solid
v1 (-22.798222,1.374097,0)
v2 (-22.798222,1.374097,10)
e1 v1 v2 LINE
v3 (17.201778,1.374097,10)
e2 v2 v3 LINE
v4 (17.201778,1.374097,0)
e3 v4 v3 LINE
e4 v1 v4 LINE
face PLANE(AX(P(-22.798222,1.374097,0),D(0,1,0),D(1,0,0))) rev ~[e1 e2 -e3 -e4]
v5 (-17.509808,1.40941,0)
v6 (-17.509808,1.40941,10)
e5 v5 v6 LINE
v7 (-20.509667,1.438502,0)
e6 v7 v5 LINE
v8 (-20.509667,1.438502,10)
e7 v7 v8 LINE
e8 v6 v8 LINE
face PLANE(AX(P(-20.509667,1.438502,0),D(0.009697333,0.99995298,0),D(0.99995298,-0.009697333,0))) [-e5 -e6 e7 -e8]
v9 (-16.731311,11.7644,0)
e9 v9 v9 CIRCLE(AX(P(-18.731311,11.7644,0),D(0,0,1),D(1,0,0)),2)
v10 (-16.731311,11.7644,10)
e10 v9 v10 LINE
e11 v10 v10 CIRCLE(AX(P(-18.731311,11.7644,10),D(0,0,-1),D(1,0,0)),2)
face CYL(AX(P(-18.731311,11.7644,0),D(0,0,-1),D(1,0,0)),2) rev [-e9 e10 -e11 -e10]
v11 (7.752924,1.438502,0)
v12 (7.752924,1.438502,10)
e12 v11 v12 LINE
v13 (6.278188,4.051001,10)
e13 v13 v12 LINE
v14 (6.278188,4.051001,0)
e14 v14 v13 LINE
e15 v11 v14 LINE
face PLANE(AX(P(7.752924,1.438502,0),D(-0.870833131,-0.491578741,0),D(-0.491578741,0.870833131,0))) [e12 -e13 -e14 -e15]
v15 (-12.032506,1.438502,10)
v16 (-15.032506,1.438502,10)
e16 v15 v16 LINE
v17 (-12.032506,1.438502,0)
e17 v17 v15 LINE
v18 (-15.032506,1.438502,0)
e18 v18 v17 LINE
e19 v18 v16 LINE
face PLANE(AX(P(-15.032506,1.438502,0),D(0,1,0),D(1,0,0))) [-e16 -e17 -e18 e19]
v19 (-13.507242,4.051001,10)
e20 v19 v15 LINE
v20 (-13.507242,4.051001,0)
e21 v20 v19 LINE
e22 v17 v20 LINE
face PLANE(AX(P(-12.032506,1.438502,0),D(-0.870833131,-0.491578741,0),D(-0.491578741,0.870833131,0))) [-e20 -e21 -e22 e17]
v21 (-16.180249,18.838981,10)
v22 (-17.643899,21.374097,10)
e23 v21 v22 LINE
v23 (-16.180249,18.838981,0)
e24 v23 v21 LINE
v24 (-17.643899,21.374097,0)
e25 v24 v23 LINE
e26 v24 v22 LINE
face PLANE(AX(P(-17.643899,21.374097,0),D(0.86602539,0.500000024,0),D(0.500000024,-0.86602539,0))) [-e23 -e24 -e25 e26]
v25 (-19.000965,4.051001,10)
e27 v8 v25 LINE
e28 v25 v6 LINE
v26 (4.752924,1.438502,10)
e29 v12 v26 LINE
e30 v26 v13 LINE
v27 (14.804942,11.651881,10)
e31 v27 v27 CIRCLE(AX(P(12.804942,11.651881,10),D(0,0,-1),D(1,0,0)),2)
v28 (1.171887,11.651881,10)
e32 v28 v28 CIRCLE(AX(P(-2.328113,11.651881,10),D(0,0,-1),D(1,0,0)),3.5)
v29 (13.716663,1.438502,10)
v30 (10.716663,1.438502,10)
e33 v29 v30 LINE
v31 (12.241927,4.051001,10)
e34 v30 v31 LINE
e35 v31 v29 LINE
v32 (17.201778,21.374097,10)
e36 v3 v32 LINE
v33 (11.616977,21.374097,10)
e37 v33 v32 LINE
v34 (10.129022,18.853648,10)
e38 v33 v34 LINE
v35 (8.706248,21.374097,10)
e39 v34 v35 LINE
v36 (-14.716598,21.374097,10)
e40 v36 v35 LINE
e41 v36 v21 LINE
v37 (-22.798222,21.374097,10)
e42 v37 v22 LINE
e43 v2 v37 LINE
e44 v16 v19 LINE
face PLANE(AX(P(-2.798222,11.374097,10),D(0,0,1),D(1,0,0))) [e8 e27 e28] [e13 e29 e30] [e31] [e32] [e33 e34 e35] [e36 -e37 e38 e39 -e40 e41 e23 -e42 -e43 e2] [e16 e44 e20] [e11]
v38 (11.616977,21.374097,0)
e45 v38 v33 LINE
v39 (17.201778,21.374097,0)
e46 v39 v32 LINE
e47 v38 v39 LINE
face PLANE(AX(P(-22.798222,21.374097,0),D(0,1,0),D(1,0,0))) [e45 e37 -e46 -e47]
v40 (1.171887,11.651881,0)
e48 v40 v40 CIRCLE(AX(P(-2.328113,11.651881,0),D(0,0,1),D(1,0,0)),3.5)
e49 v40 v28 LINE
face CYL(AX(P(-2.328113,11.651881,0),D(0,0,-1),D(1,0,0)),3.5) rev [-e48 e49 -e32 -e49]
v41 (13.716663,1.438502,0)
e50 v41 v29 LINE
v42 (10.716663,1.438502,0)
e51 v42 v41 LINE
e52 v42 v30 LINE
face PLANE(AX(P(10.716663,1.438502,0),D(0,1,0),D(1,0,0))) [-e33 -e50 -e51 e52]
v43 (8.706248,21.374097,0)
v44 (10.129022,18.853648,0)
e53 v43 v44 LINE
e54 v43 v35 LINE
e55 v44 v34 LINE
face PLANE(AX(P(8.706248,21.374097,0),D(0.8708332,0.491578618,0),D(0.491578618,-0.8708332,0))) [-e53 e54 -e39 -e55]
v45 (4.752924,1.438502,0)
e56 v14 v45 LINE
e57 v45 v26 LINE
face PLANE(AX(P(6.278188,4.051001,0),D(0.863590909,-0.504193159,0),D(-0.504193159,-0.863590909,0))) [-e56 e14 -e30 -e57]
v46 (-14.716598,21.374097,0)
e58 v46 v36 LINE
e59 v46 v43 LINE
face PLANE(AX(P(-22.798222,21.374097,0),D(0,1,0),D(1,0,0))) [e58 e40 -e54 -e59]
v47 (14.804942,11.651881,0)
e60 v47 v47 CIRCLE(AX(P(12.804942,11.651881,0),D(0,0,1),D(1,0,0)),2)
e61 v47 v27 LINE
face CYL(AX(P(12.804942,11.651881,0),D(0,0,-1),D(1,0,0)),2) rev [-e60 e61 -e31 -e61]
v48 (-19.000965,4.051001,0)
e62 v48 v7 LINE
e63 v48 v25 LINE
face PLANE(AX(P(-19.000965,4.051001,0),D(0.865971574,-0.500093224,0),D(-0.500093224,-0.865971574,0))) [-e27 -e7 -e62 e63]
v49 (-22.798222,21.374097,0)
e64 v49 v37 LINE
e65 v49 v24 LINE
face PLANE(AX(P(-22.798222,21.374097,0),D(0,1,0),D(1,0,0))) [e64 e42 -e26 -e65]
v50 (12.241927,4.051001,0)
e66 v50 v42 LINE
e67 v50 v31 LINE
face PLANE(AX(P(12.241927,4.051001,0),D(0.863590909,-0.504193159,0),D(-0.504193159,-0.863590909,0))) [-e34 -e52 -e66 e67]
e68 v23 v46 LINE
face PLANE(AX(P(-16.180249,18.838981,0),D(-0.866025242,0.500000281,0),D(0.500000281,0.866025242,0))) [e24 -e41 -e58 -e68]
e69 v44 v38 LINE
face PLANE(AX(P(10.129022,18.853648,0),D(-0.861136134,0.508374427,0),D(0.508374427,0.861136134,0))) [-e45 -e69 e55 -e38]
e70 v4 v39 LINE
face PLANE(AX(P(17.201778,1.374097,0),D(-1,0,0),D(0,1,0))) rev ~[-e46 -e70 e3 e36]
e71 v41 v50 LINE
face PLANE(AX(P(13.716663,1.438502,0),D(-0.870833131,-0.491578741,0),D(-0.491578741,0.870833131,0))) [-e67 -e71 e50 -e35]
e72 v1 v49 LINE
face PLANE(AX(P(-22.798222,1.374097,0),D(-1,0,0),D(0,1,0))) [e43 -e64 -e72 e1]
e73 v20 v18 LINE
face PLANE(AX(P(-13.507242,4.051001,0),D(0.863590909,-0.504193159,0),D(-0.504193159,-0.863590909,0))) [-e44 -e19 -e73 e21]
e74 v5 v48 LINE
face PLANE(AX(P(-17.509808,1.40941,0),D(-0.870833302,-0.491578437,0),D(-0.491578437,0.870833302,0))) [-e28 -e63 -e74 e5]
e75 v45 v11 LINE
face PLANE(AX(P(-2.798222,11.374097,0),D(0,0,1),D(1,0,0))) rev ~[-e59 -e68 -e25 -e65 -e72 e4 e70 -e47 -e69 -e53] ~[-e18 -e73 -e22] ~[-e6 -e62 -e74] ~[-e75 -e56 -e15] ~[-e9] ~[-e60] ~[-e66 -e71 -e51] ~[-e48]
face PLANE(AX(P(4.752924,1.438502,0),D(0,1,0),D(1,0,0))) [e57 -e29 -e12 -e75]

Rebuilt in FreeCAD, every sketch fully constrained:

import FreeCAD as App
import Part
import Sketcher
Q = App.Units.Quantity

doc = App.newDocument("Part")
body = doc.addObject("PartDesign::Body", "Body")

# Sketch on XY plane
sketch1 = body.newObject("Sketcher::SketchObject", "Sketch")
sketch1.AttachmentSupport = (doc.getObject("XY_Plane"), [""])
sketch1.MapMode = "FlatFace"
sketch1.addGeometry(Part.LineSegment(App.Vector(-23, 21, 0), App.Vector(-23, 1, 0)), False)
sketch1.addGeometry(Part.LineSegment(App.Vector(-23, 1, 0), App.Vector(17, 1, 0)), False)
sketch1.addGeometry(Part.LineSegment(App.Vector(17, 1, 0), App.Vector(17, 21, 0)), False)
sketch1.addGeometry(Part.LineSegment(App.Vector(17, 21, 0), App.Vector(-23, 21, 0)), False)
sketch1.addConstraint(Sketcher.Constraint("Coincident", 0, 2, 1, 1))
sketch1.addConstraint(Sketcher.Constraint("Coincident", 1, 2, 2, 1))
sketch1.addConstraint(Sketcher.Constraint("Coincident", 2, 2, 3, 1))
sketch1.addConstraint(Sketcher.Constraint("Coincident", 3, 2, 0, 1))
sketch1.addConstraint(Sketcher.Constraint("Vertical", 0))
sketch1.addConstraint(Sketcher.Constraint("Horizontal", 1))
sketch1.addConstraint(Sketcher.Constraint("Vertical", 2))
sketch1.addConstraint(Sketcher.Constraint("Horizontal", 3))
sketch1.addConstraint(Sketcher.Constraint("DistanceX", 1, 1, 1, 2, 40.0))
sketch1.addConstraint(Sketcher.Constraint("DistanceY", 0, 2, 0, 1, 20.0))
sketch1.addConstraint(Sketcher.Constraint("DistanceX", 0, 2, -1, 1, 22.798222))
sketch1.addConstraint(Sketcher.Constraint("DistanceY", -1, 1, 0, 2, 1.374097))
pad1 = body.newObject("PartDesign::Pad", "Pad")
pad1.Profile = sketch1
pad1.Length = 10

# Sketch on XY plane
sketch2 = body.newObject("Sketcher::SketchObject", "Sketch001")
sketch2.AttachmentSupport = (doc.getObject("XY_Plane"), [""])
sketch2.MapMode = "FlatFace"
sketch2.addGeometry(Part.LineSegment(App.Vector(-19, 4.1, 0), App.Vector(-20.5, 1.4, 0)), False)
sketch2.addGeometry(Part.LineSegment(App.Vector(-20.5, 1.4, 0), App.Vector(-17.5, 1.4, 0)), False)
sketch2.addGeometry(Part.LineSegment(App.Vector(-17.5, 1.4, 0), App.Vector(-19, 4.1, 0)), False)
sketch2.addGeometry(Part.LineSegment(App.Vector(-13.5, 4.1, 0), App.Vector(-15, 1.4, 0)), False)
sketch2.addGeometry(Part.LineSegment(App.Vector(-15, 1.4, 0), App.Vector(-12, 1.4, 0)), False)
sketch2.addGeometry(Part.LineSegment(App.Vector(-12, 1.4, 0), App.Vector(-13.5, 4.1, 0)), False)
sketch2.addGeometry(Part.LineSegment(App.Vector(6.3, 4.1, 0), App.Vector(4.8, 1.4, 0)), False)
sketch2.addGeometry(Part.LineSegment(App.Vector(4.8, 1.4, 0), App.Vector(7.8, 1.4, 0)), False)
sketch2.addGeometry(Part.LineSegment(App.Vector(7.8, 1.4, 0), App.Vector(6.3, 4.1, 0)), False)
sketch2.addGeometry(Part.LineSegment(App.Vector(12.2, 4.1, 0), App.Vector(10.7, 1.4, 0)), False)
sketch2.addGeometry(Part.LineSegment(App.Vector(10.7, 1.4, 0), App.Vector(13.7, 1.4, 0)), False)
sketch2.addGeometry(Part.LineSegment(App.Vector(13.7, 1.4, 0), App.Vector(12.2, 4.1, 0)), False)
sketch2.addGeometry(Part.Circle(App.Vector(12.8, 11.7, 0), App.Vector(0, 0, 1), 2), False)
sketch2.addGeometry(Part.Circle(App.Vector(-2.3, 11.7, 0), App.Vector(0, 0, 1), 3.5), False)
sketch2.addGeometry(Part.Circle(App.Vector(-18.7, 11.8, 0), App.Vector(0, 0, 1), 2), False)
sketch2.addGeometry(Part.LineSegment(App.Vector(-16.2, 18.8, 0), App.Vector(-14.7, 21.4, 0)), False)
sketch2.addGeometry(Part.LineSegment(App.Vector(-14.7, 21.4, 0), App.Vector(-17.6, 21.4, 0)), False)
sketch2.addGeometry(Part.LineSegment(App.Vector(-17.6, 21.4, 0), App.Vector(-16.2, 18.8, 0)), False)
sketch2.addGeometry(Part.LineSegment(App.Vector(11.6, 21.4, 0), App.Vector(8.7, 21.4, 0)), False)
sketch2.addGeometry(Part.LineSegment(App.Vector(8.7, 21.4, 0), App.Vector(10.1, 18.9, 0)), False)
sketch2.addGeometry(Part.LineSegment(App.Vector(10.1, 18.9, 0), App.Vector(11.6, 21.4, 0)), False)
sketch2.addConstraint(Sketcher.Constraint("Coincident", 0, 2, 1, 1))
sketch2.addConstraint(Sketcher.Constraint("Coincident", 1, 2, 2, 1))
sketch2.addConstraint(Sketcher.Constraint("Coincident", 2, 2, 0, 1))
sketch2.addConstraint(Sketcher.Constraint("Coincident", 3, 2, 4, 1))
sketch2.addConstraint(Sketcher.Constraint("Coincident", 4, 2, 5, 1))
sketch2.addConstraint(Sketcher.Constraint("Coincident", 5, 2, 3, 1))
sketch2.addConstraint(Sketcher.Constraint("Coincident", 6, 2, 7, 1))
sketch2.addConstraint(Sketcher.Constraint("Coincident", 7, 2, 8, 1))
sketch2.addConstraint(Sketcher.Constraint("Coincident", 8, 2, 6, 1))
sketch2.addConstraint(Sketcher.Constraint("Coincident", 9, 2, 10, 1))
sketch2.addConstraint(Sketcher.Constraint("Coincident", 10, 2, 11, 1))
sketch2.addConstraint(Sketcher.Constraint("Coincident", 11, 2, 9, 1))
sketch2.addConstraint(Sketcher.Constraint("Coincident", 15, 2, 16, 1))
sketch2.addConstraint(Sketcher.Constraint("Coincident", 16, 2, 17, 1))
sketch2.addConstraint(Sketcher.Constraint("Coincident", 17, 2, 15, 1))
sketch2.addConstraint(Sketcher.Constraint("Coincident", 18, 2, 19, 1))
sketch2.addConstraint(Sketcher.Constraint("Coincident", 19, 2, 20, 1))
sketch2.addConstraint(Sketcher.Constraint("Coincident", 20, 2, 18, 1))
sketch2.addConstraint(Sketcher.Constraint("Horizontal", 4))
sketch2.addConstraint(Sketcher.Constraint("Horizontal", 7))
sketch2.addConstraint(Sketcher.Constraint("Horizontal", 10))
sketch2.addConstraint(Sketcher.Constraint("Horizontal", 16))
sketch2.addConstraint(Sketcher.Constraint("Horizontal", 18))
sketch2.addConstraint(Sketcher.Constraint("Equal", 12, 14))
sketch2.addConstraint(Sketcher.Constraint("Parallel", 2, 5))
sketch2.addConstraint(Sketcher.Constraint("Parallel", 3, 6))
sketch2.addConstraint(Sketcher.Constraint("Parallel", 5, 8))
sketch2.addConstraint(Sketcher.Constraint("Parallel", 6, 9))
sketch2.addConstraint(Sketcher.Constraint("Parallel", 8, 11))
sketch2.addConstraint(Sketcher.Constraint("Parallel", 11, 19))
sketch2.addConstraint(Sketcher.Constraint("Horizontal", 12, 3, 13, 3))
sketch2.addConstraint(Sketcher.Constraint("Horizontal", 0, 2, 3, 2))
sketch2.addConstraint(Sketcher.Constraint("Horizontal", 2, 2, 5, 2))
sketch2.addConstraint(Sketcher.Constraint("Horizontal", 4, 2, 6, 2))
sketch2.addConstraint(Sketcher.Constraint("Horizontal", 5, 2, 8, 2))
sketch2.addConstraint(Sketcher.Constraint("Horizontal", 7, 2, 9, 2))
sketch2.addConstraint(Sketcher.Constraint("Horizontal", 8, 2, 11, 2))
sketch2.addConstraint(Sketcher.Constraint("Horizontal", 16, 2, 18, 2))
sketch2.addConstraint(Sketcher.Constraint("Equal", 1, 5))
sketch2.addConstraint(Sketcher.Constraint("Equal", 15, 17))
sketch2.addConstraint(Sketcher.Constraint("Diameter", 12, 4.0))
sketch2.addConstraint(Sketcher.Constraint("Diameter", 13, 7.0))
sketch2.addConstraint(Sketcher.Constraint("DistanceX", 4, 1, 4, 2, 3.0))
sketch2.addConstraint(Sketcher.Constraint("Angle", 15, Q("59.999981 deg")))
sketch2.addConstraint(Sketcher.Constraint("Distance", 1, 3.0))
sketch2.addConstraint(Sketcher.Constraint("DistanceX", 16, 2, 16, 1, 2.927301))
sketch2.addConstraint(Sketcher.Constraint("DistanceY", -1, 1, 2, 2, 4.051001))
sketch2.addConstraint(Sketcher.Constraint("DistanceX", 18, 2, 18, 1, 2.910729))
sketch2.addConstraint(Sketcher.Constraint("DistanceY", -1, 1, 14, 3, 11.7644))
sketch2.addConstraint(Sketcher.Constraint("DistanceX", 16, 2, -1, 1, 17.643899))
sketch2.addConstraint(Sketcher.Constraint("DistanceX", 14, 3, 13, 3, 16.403198))
sketch2.addConstraint(Sketcher.Constraint("DistanceX", 0, 2, 2, 2, 1.508702))
sketch2.addConstraint(Sketcher.Constraint("DistanceY", 0, 2, 2, 2, 2.612499))
sketch2.addConstraint(Sketcher.Constraint("DistanceX", 1, 2, 3, 2, 2.477302))
sketch2.addConstraint(Sketcher.Constraint("DistanceX", 13, 3, 8, 2, 8.606301))
sketch2.addConstraint(Sketcher.Constraint("DistanceY", -1, 1, 12, 3, 11.651881))
sketch2.addConstraint(Sketcher.Constraint("DistanceX", 14, 3, -1, 1, 18.731311))
sketch2.addConstraint(Sketcher.Constraint("DistanceY", -1, 1, 17, 2, 18.838981))
sketch2.addConstraint(Sketcher.Constraint("DistanceY", -1, 1, 19, 2, 18.853648))
sketch2.addConstraint(Sketcher.Constraint("DistanceX", 0, 2, 12, 3, 33.314609))
sketch2.addConstraint(Sketcher.Constraint("DistanceX", 2, 2, 13, 3, 16.672852))
sketch2.addConstraint(Sketcher.Constraint("DistanceX", 7, 2, 9, 2, 2.963739))
sketch2.addConstraint(Sketcher.Constraint("DistanceX", 13, 3, 18, 2, 11.034361))
pocket1 = body.newObject("PartDesign::Pocket", "Pocket")
pocket1.Profile = sketch2
pocket1.Type = "ThroughAll"
pocket1.Reversed = True

doc.recompute()
